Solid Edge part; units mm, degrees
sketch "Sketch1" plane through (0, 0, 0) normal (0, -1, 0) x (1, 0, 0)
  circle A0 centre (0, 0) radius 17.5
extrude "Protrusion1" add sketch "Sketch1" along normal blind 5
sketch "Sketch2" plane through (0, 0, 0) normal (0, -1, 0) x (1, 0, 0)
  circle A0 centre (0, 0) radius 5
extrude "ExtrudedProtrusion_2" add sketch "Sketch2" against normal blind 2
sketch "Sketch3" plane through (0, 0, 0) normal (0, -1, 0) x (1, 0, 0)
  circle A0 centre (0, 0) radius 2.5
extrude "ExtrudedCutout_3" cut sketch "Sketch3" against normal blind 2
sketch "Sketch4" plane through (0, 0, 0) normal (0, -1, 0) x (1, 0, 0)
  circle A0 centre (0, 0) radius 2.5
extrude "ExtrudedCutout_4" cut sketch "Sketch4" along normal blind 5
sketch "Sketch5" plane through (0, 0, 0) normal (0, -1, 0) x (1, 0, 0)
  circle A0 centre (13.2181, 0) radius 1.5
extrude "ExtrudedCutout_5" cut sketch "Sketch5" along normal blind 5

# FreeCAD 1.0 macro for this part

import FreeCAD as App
import Part
import Sketcher
from FreeCAD import Vector

doc = App.newDocument("Part")
body = doc.addObject("PartDesign::Body", "Body")

# Sketch on XZ plane
sketch1 = body.newObject("Sketcher::SketchObject", "Sketch")
sketch1.AttachmentSupport = (doc.getObject("XZ_Plane"), [""])
sketch1.MapMode = "FlatFace"
sketch1.addGeometry(Part.Circle(Vector(0, 0, 0), Vector(0, 0, 1), 18), False)
sketch1.addConstraint(Sketcher.Constraint("Coincident", 0, 3, -1, 1))
sketch1.addConstraint(Sketcher.Constraint("Diameter", 0, 35.0))
pad1 = body.newObject("PartDesign::Pad", "Pad")
pad1.Profile = sketch1
pad1.Length = 5

# Sketch on XZ plane
sketch2 = body.newObject("Sketcher::SketchObject", "Sketch001")
sketch2.AttachmentSupport = (doc.getObject("XZ_Plane"), [""])
sketch2.MapMode = "FlatFace"
sketch2.addGeometry(Part.Circle(Vector(0, 0, 0), Vector(0, 0, 1), 5), False)
sketch2.addConstraint(Sketcher.Constraint("Coincident", 0, 3, -1, 1))
sketch2.addConstraint(Sketcher.Constraint("Diameter", 0, 10.0))
pad2 = body.newObject("PartDesign::Pad", "Pad001")
pad2.Profile = sketch2
pad2.Length = 2
pad2.Reversed = True

# Sketch on XZ plane
sketch3 = body.newObject("Sketcher::SketchObject", "Sketch002")
sketch3.AttachmentSupport = (doc.getObject("XZ_Plane"), [""])
sketch3.MapMode = "FlatFace"
sketch3.addGeometry(Part.Circle(Vector(0, 0, 0), Vector(0, 0, 1), 2.5), False)
sketch3.addConstraint(Sketcher.Constraint("Coincident", 0, 3, -1, 1))
sketch3.addConstraint(Sketcher.Constraint("Diameter", 0, 5.0))
pocket1 = body.newObject("PartDesign::Pocket", "Pocket")
pocket1.Profile = sketch3
pocket1.Length = 2

# Sketch on XZ plane
sketch4 = body.newObject("Sketcher::SketchObject", "Sketch003")
sketch4.AttachmentSupport = (doc.getObject("XZ_Plane"), [""])
sketch4.MapMode = "FlatFace"
sketch4.addGeometry(Part.Circle(Vector(0, 0, 0), Vector(0, 0, 1), 2.5), False)
sketch4.addConstraint(Sketcher.Constraint("Coincident", 0, 3, -1, 1))
sketch4.addConstraint(Sketcher.Constraint("Diameter", 0, 5.0))
pocket2 = body.newObject("PartDesign::Pocket", "Pocket001")
pocket2.Profile = sketch4
pocket2.Length = 5
pocket2.Reversed = True

# Sketch on XZ plane
sketch5 = body.newObject("Sketcher::SketchObject", "Sketch004")
sketch5.AttachmentSupport = (doc.getObject("XZ_Plane"), [""])
sketch5.MapMode = "FlatFace"
sketch5.addGeometry(Part.Circle(Vector(13.2, 0, 0), Vector(0, 0, 1), 1.5), False)
sketch5.addConstraint(Sketcher.Constraint("PointOnObject", 0, 3, -1))
sketch5.addConstraint(Sketcher.Constraint("Diameter", 0, 3.0))
sketch5.addConstraint(Sketcher.Constraint("DistanceX", -1, 1, 0, 3, 13.218))
pocket3 = body.newObject("PartDesign::Pocket", "Pocket002")
pocket3.Profile = sketch5
pocket3.Length = 5
pocket3.Reversed = True

doc.recompute()
